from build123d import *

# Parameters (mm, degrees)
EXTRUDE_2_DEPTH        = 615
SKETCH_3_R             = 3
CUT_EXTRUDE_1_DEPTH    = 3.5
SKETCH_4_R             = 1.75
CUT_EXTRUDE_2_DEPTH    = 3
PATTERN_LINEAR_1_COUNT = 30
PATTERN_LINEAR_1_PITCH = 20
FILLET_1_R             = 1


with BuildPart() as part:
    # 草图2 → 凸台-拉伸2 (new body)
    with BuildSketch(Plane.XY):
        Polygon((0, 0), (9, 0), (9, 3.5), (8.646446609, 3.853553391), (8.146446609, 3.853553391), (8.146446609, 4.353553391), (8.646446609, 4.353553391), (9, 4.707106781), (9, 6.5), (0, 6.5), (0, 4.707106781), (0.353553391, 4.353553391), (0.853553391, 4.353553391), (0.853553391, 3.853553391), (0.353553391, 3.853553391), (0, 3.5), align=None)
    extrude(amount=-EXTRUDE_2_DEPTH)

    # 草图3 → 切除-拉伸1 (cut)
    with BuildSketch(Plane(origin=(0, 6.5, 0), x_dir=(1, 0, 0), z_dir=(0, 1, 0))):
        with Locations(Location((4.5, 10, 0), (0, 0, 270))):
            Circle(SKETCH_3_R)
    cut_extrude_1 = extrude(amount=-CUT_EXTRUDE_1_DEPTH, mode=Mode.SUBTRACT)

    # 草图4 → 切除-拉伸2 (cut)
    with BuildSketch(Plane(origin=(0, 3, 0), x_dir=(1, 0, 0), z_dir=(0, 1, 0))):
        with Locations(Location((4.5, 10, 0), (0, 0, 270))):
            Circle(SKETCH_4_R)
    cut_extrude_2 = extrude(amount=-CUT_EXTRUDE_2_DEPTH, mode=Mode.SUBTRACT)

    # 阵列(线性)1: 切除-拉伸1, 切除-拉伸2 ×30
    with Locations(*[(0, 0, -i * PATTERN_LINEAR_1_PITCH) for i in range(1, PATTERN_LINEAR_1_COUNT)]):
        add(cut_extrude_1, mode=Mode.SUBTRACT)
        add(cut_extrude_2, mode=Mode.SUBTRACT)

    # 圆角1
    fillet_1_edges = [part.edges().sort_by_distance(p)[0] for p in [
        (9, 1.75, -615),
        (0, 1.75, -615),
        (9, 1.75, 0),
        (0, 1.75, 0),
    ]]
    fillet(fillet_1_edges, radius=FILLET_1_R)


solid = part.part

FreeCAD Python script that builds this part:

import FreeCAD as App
import Part
import Sketcher

V = App.Vector


def edges_at(feature, points):
    """Names of the edges that pass closest to the given points."""
    edges = feature.Shape.Edges
    near = lambda p: min(range(len(edges)), key=lambda i: edges[i].distToShape(Part.Vertex(*p))[0])
    return sorted({f"Edge{near(p) + 1}" for p in points})


def add_polygon(sketch, points):
    """Adds a closed chain of lines whose ends are joined by coincident constraints."""
    first, n = sketch.GeometryCount, len(points)
    for a, b in zip(points, points[1:] + points[:1]):
        sketch.addGeometry(Part.LineSegment(App.Vector(*a, 0), App.Vector(*b, 0)), False)
    for i in range(n):
        sketch.addConstraint(Sketcher.Constraint("Coincident", first + i, 2, first + (i + 1) % n, 1))

doc = App.newDocument("Part")
body = doc.addObject("PartDesign::Body", "Body")

# Sketch on XY plane
sketch1 = body.newObject("Sketcher::SketchObject", "Sketch")
sketch1.AttachmentSupport = (doc.getObject("XY_Plane"), [""])
sketch1.MapMode = "FlatFace"
add_polygon(sketch1, [(0, 0), (9, 0), (9, 3.5), (8.646447, 3.853553), (8.146447, 3.853553), (8.146447, 4.353553), (8.646447, 4.353553), (9, 4.707107), (9, 6.5), (0, 6.5), (0, 4.707107), (0.353553, 4.353553), (0.853553, 4.353553), (0.853553, 3.853553), (0.353553, 3.853553), (0, 3.5)])  # lines 0-15
sketch1.addConstraint([
    Sketcher.Constraint("Horizontal", 0),
    Sketcher.Constraint("Vertical", 1),
    Sketcher.Constraint("Horizontal", 3),
    Sketcher.Constraint("Vertical", 4),
    Sketcher.Constraint("Horizontal", 5),
    Sketcher.Constraint("Vertical", 7),
    Sketcher.Constraint("Horizontal", 8),
    Sketcher.Constraint("Vertical", 9),
    Sketcher.Constraint("Horizontal", 11),
    Sketcher.Constraint("Vertical", 12),
    Sketcher.Constraint("Horizontal", 13),
    Sketcher.Constraint("Vertical", 15),
    Sketcher.Constraint("Coincident", 15, 2, -1, 1),
    Sketcher.Constraint("PointOnObject", 8, 2, -2),
    Sketcher.Constraint("Perpendicular", 2, 6),
    Sketcher.Constraint("Perpendicular", 6, 10),
    Sketcher.Constraint("Perpendicular", 10, 14),
    Sketcher.Constraint("Horizontal", 6, 2, 9, 2),
    Sketcher.Constraint("Horizontal", 5, 2, 10, 2),
    Sketcher.Constraint("Horizontal", 3, 2, 12, 2),
    Sketcher.Constraint("Horizontal", 1, 2, 14, 2),
    Sketcher.Constraint("Vertical", 2, 2, 5, 2),
    Sketcher.Constraint("Vertical", 1, 2, 6, 2),
    Sketcher.Constraint("Vertical", 10, 2, 13, 2),
    Sketcher.Constraint("Equal", 5, 11),
    Sketcher.Constraint("Equal", 13, 4),
    Sketcher.Constraint("DistanceX", 0, 1, 0, 2, 9.0),
    Sketcher.Constraint("DistanceX", 3, 2, 3, 1, 0.5),
    Sketcher.Constraint("DistanceY", 1, 1, 1, 2, 3.5),
    Sketcher.Constraint("Distance", 2, 0.5),
    Sketcher.Constraint("DistanceY", -1, 1, 7, 2, 6.5),
])
pad1 = body.newObject("PartDesign::Pad", "Pad")
pad1.Profile = sketch1
pad1.Length = 615
pad1.Reversed = True

# Sketch on XZ plane
sketch2 = body.newObject("Sketcher::SketchObject", "Sketch001")
sketch2.AttachmentSupport = (doc.getObject("XZ_Plane"), [""])
sketch2.MapMode = "FlatFace"
sketch2.AttachmentOffset = App.Placement(V(0, 0, -6.5), App.Rotation())
sketch2.addGeometry(Part.Circle(V(4.5, -10, 0), V(0, 0, 1), 3), False)
sketch2.addConstraint([
    Sketcher.Constraint("Diameter", 0, 6.0),
    Sketcher.Constraint("DistanceY", 0, 3, -1, 1, 10.0),
    Sketcher.Constraint("DistanceX", -1, 1, 0, 3, 4.5),
])
pocket1 = body.newObject("PartDesign::Pocket", "Pocket")
pocket1.Profile = sketch2
pocket1.Length = 3.5
pocket1.Reversed = True

# Sketch on XZ plane
sketch3 = body.newObject("Sketcher::SketchObject", "Sketch002")
sketch3.AttachmentSupport = (doc.getObject("XZ_Plane"), [""])
sketch3.MapMode = "FlatFace"
sketch3.AttachmentOffset = App.Placement(V(0, 0, -3), App.Rotation())
sketch3.addGeometry(Part.Circle(V(4.5, -10, 0), V(0, 0, 1), 1.75), False)
sketch3.addConstraint([
    Sketcher.Constraint("Diameter", 0, 3.5),
    Sketcher.Constraint("DistanceY", 0, 3, -1, 1, 10.0),
    Sketcher.Constraint("DistanceX", -1, 1, 0, 3, 4.5),
])
pocket2 = body.newObject("PartDesign::Pocket", "Pocket001")
pocket2.Profile = sketch3
pocket2.Length = 3
pocket2.Reversed = True
doc.recompute()

linearpattern = body.newObject("PartDesign::LinearPattern", "LinearPattern")
linearpattern.Originals = [pocket1, pocket2]
linearpattern.Direction = (doc.getObject("Z_Axis"), [""])
linearpattern.Mode = "offset"
linearpattern.Offset = 20
linearpattern.Occurrences = 30
linearpattern.Reversed = True
body.Tip = linearpattern
doc.recompute()

fillet = body.newObject("PartDesign::Fillet", "Fillet")
fillet.Base = (linearpattern, edges_at(linearpattern, [
    (9, 1.75, -615),
    (0, 1.75, -615),
    (9, 1.75, 0),
    (0, 1.75, 0),
]))
fillet.Radius = 1

doc.recompute()
